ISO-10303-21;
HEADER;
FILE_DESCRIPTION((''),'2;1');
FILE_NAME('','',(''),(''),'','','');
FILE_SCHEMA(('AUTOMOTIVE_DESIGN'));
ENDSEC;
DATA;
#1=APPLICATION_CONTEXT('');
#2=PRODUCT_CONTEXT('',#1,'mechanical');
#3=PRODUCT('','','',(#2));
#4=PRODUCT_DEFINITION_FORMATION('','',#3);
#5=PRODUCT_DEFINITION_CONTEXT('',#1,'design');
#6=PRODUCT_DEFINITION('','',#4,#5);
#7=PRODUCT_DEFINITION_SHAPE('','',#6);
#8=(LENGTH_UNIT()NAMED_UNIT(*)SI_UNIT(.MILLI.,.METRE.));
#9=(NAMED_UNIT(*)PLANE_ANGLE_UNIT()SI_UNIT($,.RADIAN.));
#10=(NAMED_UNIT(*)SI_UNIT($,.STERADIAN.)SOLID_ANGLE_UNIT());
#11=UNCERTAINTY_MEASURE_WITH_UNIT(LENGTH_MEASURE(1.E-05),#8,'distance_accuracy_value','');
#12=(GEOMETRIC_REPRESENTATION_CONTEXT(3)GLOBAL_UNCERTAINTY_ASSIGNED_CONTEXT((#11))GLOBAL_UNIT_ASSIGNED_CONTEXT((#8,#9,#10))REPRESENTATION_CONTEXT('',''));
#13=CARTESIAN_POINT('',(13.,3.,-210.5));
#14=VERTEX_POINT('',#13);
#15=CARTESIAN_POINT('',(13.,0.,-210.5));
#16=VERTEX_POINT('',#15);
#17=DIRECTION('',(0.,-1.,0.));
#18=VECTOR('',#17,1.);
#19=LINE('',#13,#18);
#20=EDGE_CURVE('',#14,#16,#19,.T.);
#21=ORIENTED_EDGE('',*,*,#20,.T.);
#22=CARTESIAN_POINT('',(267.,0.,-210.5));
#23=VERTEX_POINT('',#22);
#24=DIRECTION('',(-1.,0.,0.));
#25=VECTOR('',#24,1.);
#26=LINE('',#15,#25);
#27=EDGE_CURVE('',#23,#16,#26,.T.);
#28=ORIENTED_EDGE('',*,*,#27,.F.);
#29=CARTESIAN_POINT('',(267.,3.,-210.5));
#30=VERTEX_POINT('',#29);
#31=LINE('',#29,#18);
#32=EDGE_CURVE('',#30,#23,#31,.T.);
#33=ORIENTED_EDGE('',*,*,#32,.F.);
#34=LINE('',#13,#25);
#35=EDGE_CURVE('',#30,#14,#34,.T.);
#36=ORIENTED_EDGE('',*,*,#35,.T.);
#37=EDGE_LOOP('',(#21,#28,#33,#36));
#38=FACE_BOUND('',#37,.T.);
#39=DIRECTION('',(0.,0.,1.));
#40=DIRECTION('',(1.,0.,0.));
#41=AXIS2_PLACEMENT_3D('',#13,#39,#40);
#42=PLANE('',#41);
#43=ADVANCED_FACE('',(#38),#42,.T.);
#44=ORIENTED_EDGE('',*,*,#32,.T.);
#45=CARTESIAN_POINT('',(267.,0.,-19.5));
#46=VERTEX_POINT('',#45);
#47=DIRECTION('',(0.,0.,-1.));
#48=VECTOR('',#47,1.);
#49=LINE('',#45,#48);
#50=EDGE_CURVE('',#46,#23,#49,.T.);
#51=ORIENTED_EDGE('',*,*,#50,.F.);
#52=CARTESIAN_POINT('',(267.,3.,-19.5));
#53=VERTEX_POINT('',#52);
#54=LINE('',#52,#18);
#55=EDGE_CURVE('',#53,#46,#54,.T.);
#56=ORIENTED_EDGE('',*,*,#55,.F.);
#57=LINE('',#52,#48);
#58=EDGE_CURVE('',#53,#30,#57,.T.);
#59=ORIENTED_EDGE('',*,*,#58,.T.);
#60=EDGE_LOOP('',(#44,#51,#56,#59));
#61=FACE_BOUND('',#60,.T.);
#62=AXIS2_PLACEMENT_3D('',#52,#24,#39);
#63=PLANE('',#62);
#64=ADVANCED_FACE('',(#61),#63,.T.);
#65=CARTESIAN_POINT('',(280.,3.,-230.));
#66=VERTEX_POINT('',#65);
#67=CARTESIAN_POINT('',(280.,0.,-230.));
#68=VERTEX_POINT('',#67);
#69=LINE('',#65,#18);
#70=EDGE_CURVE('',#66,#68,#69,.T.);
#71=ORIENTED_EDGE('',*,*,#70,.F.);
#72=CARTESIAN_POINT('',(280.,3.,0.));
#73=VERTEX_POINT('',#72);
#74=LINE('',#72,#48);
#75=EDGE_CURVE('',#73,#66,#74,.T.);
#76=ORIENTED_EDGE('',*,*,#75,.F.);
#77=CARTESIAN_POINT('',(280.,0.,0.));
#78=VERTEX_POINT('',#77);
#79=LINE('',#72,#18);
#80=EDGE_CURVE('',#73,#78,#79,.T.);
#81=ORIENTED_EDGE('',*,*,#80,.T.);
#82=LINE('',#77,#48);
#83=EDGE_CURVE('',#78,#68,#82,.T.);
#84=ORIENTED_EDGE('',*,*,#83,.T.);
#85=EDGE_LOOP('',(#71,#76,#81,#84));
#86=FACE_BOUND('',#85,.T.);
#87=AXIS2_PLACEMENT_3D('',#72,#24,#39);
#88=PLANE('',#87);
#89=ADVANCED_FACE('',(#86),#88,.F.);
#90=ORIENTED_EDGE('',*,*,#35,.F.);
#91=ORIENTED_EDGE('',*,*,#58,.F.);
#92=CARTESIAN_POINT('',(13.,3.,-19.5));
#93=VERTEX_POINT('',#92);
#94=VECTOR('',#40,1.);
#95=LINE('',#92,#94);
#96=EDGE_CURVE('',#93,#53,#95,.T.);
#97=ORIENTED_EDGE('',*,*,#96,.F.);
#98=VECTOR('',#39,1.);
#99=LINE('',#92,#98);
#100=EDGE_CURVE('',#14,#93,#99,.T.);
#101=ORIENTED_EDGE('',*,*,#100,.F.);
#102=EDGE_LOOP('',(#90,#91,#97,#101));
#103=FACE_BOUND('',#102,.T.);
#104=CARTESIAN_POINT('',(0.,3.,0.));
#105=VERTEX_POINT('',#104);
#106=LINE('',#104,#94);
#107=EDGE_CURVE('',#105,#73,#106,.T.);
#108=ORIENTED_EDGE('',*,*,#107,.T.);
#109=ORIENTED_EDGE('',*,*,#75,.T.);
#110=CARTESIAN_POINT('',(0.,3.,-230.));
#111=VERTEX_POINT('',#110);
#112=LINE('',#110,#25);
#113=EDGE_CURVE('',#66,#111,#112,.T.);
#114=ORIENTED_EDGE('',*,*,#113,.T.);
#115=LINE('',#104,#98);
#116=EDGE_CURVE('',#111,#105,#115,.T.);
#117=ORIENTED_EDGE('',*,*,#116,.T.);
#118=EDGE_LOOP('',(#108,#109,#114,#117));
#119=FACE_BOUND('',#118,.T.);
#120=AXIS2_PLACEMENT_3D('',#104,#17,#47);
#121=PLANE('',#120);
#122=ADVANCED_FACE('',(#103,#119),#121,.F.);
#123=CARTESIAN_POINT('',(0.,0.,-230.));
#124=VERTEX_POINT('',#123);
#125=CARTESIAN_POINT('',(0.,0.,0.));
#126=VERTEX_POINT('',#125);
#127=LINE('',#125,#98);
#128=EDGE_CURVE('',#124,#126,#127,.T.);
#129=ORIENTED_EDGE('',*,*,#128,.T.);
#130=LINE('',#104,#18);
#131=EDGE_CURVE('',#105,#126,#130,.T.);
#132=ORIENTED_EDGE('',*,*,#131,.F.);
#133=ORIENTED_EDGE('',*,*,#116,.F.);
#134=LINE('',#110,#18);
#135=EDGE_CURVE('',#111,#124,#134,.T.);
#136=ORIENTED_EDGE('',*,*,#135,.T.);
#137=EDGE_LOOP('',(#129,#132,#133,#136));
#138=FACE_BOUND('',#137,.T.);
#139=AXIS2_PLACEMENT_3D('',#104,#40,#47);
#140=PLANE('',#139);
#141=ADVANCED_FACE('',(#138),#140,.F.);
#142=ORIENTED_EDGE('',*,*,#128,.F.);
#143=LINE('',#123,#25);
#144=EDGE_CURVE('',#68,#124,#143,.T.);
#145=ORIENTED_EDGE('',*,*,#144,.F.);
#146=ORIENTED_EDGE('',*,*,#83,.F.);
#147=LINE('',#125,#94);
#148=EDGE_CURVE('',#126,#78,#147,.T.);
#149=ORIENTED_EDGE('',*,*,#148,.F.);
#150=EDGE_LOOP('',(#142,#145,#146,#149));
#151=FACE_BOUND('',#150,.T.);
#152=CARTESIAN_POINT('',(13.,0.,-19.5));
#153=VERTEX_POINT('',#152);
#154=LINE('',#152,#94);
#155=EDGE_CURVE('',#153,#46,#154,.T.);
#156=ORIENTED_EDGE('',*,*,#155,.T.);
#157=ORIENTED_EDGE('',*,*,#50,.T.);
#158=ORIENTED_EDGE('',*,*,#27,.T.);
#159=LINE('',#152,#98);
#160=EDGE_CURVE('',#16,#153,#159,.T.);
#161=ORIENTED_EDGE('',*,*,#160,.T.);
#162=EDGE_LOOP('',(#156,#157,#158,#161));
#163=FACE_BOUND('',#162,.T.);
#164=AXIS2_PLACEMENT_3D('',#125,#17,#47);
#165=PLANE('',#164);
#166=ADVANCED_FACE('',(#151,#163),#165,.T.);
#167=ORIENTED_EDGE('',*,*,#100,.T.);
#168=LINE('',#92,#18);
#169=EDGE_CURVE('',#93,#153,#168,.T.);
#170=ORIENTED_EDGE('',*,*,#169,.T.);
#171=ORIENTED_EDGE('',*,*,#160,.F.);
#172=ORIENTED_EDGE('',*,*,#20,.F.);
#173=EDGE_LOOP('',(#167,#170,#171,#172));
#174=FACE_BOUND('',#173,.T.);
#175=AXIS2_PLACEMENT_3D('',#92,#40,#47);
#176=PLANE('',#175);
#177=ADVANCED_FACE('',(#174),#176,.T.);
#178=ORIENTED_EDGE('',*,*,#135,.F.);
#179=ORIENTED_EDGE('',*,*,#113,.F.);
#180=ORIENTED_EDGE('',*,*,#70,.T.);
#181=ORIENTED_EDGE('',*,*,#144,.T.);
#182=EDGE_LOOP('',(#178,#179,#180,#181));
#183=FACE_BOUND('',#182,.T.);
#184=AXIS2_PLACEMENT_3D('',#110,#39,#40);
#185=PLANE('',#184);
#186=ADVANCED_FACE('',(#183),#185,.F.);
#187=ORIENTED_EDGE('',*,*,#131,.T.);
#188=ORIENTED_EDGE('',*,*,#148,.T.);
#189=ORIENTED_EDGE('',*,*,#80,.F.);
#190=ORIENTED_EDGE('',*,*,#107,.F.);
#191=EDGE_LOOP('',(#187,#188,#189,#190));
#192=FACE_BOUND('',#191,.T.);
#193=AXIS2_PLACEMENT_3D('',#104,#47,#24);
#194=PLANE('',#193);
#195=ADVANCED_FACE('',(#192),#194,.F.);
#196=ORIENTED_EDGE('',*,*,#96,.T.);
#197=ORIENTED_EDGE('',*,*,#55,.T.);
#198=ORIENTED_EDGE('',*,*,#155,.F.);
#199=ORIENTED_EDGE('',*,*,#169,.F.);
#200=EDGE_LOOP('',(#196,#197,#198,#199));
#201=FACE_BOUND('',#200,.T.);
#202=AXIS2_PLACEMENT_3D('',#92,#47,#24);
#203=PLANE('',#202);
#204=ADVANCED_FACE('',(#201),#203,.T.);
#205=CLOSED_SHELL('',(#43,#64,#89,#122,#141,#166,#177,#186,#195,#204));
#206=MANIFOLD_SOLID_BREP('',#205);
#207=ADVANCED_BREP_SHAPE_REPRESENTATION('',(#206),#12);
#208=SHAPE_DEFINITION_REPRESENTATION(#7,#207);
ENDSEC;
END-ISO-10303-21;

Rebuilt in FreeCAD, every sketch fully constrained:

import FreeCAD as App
import Part
import Sketcher


def add_polygon(sketch, points):
    """Adds a closed chain of lines whose ends are joined by coincident constraints."""
    first, n = sketch.GeometryCount, len(points)
    for a, b in zip(points, points[1:] + points[:1]):
        sketch.addGeometry(Part.LineSegment(App.Vector(*a, 0), App.Vector(*b, 0)), False)
    for i in range(n):
        sketch.addConstraint(Sketcher.Constraint("Coincident", first + i, 2, first + (i + 1) % n, 1))

doc = App.newDocument("Part")
body = doc.addObject("PartDesign::Body", "Body")

sketch1 = body.newObject("Sketcher::SketchObject", "Sketch")
sketch1.AttachmentSupport = (doc.getObject("XZ_Plane"), [""])
sketch1.MapMode = "FlatFace"
add_polygon(sketch1, [(0, -230), (0, 0), (280, 0), (280, -230)])
add_polygon(sketch1, [(267, -20), (13, -20), (13, -210), (267, -210)])
sketch1.addConstraint(Sketcher.Constraint("Vertical", 0))
sketch1.addConstraint(Sketcher.Constraint("Horizontal", 1))
sketch1.addConstraint(Sketcher.Constraint("Vertical", 2))
sketch1.addConstraint(Sketcher.Constraint("Horizontal", 3))
sketch1.addConstraint(Sketcher.Constraint("Horizontal", 4))
sketch1.addConstraint(Sketcher.Constraint("Vertical", 5))
sketch1.addConstraint(Sketcher.Constraint("Horizontal", 6))
sketch1.addConstraint(Sketcher.Constraint("Vertical", 7))
sketch1.addConstraint(Sketcher.Constraint("Coincident", 0, 2, -1, 1))
sketch1.addConstraint(Sketcher.Constraint("DistanceX", 1, 1, 1, 2, 280.0))
sketch1.addConstraint(Sketcher.Constraint("DistanceX", 4, 2, 4, 1, 254.0))
sketch1.addConstraint(Sketcher.Constraint("DistanceY", 0, 1, 0, 2, 230.0))
sketch1.addConstraint(Sketcher.Constraint("DistanceY", 5, 2, 5, 1, 191.0))
sketch1.addConstraint(Sketcher.Constraint("DistanceX", -1, 1, 4, 2, 13.0))
sketch1.addConstraint(Sketcher.Constraint("DistanceY", 4, 2, -1, 1, 19.5))
pad1 = body.newObject("PartDesign::Pad", "Pad")
pad1.Profile = sketch1
pad1.Length = 3
pad1.Reversed = True

doc.recompute()
